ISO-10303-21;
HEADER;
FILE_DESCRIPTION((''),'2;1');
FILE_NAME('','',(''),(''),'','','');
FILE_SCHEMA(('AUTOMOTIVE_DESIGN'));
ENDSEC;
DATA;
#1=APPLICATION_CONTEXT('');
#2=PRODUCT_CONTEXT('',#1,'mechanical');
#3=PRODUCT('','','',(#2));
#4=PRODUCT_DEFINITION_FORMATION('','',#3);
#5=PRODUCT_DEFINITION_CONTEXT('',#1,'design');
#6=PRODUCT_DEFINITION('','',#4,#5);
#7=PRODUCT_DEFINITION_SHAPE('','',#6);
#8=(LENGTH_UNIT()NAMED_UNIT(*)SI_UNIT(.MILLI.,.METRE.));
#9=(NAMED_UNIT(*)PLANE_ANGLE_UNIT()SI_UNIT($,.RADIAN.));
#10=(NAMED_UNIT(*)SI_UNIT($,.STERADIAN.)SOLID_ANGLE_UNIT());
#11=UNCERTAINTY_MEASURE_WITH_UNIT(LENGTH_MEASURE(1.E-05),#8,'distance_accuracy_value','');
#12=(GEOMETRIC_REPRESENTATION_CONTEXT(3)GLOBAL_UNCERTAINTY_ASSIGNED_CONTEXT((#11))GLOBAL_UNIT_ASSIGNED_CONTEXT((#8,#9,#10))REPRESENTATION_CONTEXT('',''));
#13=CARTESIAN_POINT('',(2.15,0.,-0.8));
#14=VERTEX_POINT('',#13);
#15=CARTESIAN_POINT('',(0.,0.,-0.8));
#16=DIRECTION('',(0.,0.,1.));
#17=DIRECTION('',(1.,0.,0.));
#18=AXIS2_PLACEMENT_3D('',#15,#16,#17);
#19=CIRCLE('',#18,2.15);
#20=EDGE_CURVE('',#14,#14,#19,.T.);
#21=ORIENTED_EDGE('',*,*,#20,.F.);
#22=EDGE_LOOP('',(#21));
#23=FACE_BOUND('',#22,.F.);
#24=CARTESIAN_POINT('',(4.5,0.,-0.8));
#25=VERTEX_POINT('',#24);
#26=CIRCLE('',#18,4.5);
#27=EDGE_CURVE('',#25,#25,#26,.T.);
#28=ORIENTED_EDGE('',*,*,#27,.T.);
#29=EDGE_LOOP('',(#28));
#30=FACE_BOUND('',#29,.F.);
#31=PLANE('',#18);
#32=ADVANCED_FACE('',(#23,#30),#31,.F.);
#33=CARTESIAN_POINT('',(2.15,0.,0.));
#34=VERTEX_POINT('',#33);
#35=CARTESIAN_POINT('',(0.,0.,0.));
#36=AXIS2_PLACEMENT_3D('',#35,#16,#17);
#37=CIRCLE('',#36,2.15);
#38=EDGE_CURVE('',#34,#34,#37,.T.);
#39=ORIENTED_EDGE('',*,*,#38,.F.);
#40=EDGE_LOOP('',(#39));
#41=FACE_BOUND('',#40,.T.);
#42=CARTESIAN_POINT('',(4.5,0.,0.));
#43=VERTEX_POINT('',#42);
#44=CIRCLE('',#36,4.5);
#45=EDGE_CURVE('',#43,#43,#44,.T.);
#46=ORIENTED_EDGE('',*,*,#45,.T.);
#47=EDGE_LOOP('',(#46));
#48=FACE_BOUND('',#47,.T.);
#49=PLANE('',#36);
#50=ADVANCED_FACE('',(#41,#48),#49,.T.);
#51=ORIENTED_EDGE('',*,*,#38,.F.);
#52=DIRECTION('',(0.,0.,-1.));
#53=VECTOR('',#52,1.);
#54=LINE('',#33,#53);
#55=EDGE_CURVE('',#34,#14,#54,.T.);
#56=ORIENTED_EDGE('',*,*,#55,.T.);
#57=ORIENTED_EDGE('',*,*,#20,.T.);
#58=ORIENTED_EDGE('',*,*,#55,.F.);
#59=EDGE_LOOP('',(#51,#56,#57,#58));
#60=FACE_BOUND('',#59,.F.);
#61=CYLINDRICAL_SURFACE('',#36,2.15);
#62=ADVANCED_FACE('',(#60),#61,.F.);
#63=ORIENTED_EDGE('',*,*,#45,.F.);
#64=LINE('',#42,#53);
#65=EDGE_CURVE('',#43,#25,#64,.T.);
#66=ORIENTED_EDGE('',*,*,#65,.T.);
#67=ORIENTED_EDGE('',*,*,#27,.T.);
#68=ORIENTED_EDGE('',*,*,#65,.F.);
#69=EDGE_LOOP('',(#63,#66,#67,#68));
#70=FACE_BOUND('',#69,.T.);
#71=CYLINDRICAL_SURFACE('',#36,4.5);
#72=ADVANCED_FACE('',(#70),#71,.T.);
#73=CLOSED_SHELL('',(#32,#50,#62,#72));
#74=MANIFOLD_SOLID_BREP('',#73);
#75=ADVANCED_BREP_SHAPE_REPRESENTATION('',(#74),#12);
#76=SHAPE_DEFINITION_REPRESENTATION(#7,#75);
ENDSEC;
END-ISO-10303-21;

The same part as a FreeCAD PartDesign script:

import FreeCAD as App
import Part
import Sketcher

doc = App.newDocument("Part")
body = doc.addObject("PartDesign::Body", "Body")

# Sketch on XY plane
sketch1 = doc.addObject("Sketcher::SketchObject", "Sketch")
body.addObject(sketch1)
sketch1.AttachmentSupport = (doc.XY_Plane, [""])
sketch1.MapMode = "FlatFace"
sketch1.addGeometry(Part.Circle(App.Vector(0, 0, 0), App.Vector(0, 0, 1), 4.5), False)
sketch1.addGeometry(Part.Circle(App.Vector(0, 0, 0), App.Vector(0, 0, 1), 2.1), False)
sketch1.addConstraint(Sketcher.Constraint("Coincident", 0, 3, -1, 1))
sketch1.addConstraint(Sketcher.Constraint("Coincident", 1, 3, -1, 1))
sketch1.addConstraint(Sketcher.Constraint("Diameter", 0, 9.0))
sketch1.addConstraint(Sketcher.Constraint("Diameter", 1, 4.3))
pad1 = doc.addObject("PartDesign::Pad", "Pad")
body.addObject(pad1)
pad1.Profile = sketch1
pad1.Length = 0.8
pad1.Reversed = True

doc.recompute()
